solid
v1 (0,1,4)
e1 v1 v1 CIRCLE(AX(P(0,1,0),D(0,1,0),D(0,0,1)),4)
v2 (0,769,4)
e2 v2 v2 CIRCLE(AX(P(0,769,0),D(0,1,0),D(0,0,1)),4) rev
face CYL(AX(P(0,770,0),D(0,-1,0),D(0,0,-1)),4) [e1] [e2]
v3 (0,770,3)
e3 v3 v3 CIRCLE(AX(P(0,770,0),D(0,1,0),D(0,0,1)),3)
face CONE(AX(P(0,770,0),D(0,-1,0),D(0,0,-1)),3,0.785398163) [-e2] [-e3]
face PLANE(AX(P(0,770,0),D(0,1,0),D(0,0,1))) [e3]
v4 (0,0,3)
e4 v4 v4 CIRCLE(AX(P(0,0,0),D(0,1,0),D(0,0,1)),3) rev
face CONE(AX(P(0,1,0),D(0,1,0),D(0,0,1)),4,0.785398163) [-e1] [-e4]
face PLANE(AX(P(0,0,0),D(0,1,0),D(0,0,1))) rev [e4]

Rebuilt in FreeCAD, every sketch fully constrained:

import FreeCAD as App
import Part
import Sketcher

V = App.Vector
Q = App.Units.Quantity


def edges_at(feature, points):
    """Names of the edges that pass closest to the given points."""
    edges = feature.Shape.Edges
    near = lambda p: min(range(len(edges)), key=lambda i: edges[i].distToShape(Part.Vertex(*p))[0])
    return sorted({f"Edge{near(p) + 1}" for p in points})

doc = App.newDocument("Part")
body = doc.addObject("PartDesign::Body", "Body")

sketch1 = body.newObject("Sketcher::SketchObject", "Sketch")
sketch1.AttachmentSupport = (doc.getObject("XZ_Plane"), [""])
sketch1.MapMode = "FlatFace"
sketch1.addGeometry(Part.Circle(V(0, 0, 0), V(0, 0, 1), 4), False)
sketch1.addConstraint(Sketcher.Constraint("Coincident", 0, 3, -1, 1))
sketch1.addConstraint(Sketcher.Constraint("Diameter", 0, Q("8 mm")))
pad1 = body.newObject("PartDesign::Pad", "Pad")
pad1.Profile = sketch1
pad1.Length = 770
pad1.Reversed = True
doc.recompute()

chamfer = body.newObject("PartDesign::Chamfer", "Chamfer")
chamfer.Base = (pad1, edges_at(pad1, [(0, 0, -4), (0, 770, -4)]))
chamfer.Size = 1

doc.recompute()
